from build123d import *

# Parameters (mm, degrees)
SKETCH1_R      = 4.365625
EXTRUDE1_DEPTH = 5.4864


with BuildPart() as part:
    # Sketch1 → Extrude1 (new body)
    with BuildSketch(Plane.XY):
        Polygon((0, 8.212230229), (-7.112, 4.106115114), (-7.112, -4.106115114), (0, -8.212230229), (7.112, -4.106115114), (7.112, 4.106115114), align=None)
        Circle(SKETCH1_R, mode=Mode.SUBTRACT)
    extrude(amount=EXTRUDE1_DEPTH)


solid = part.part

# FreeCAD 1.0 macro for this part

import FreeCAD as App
import Part
import Sketcher
from FreeCAD import Vector
Q = App.Units.Quantity


def add_polygon(sketch, points):
    """Adds a closed chain of lines whose ends are joined by coincident constraints."""
    first, n = sketch.GeometryCount, len(points)
    for a, b in zip(points, points[1:] + points[:1]):
        sketch.addGeometry(Part.LineSegment(App.Vector(*a, 0), App.Vector(*b, 0)), False)
    for i in range(n):
        sketch.addConstraint(Sketcher.Constraint("Coincident", first + i, 2, first + (i + 1) % n, 1))

doc = App.newDocument("Part")
params = doc.addObject("Spreadsheet::Sheet", "Params")
for row, (alias, value) in enumerate([
    ("sketch1_diameter", "0.34375 in"),
    ("pad1_length", "0.216 in"),
], start=1):
    params.set(f"A{row}", alias)
    params.set(f"B{row}", "=" + value)
    params.setAlias(f"B{row}", alias)

body = doc.addObject("PartDesign::Body", "Body")

# Sketch on XY plane
sketch1 = doc.addObject("Sketcher::SketchObject", "Sketch")
body.addObject(sketch1)
sketch1.AttachmentSupport = (doc.XY_Plane, [""])
sketch1.MapMode = "FlatFace"
add_polygon(sketch1, [(0, 8.2), (-7.1, 4.1), (-7.1, -4.1), (0, -8.2), (7.1, -4.1), (7.1, 4.1)])  # lines 0-5
sketch1.addGeometry(Part.Circle(Vector(0, 0, 0), Vector(0, 0, 1), 4.4), False)  # 6
sketch1.addConstraint([
    Sketcher.Constraint("Vertical", 1),
    Sketcher.Constraint("Vertical", 4),
    Sketcher.Constraint("Coincident", 6, 3, -1, 1),
    Sketcher.Constraint("Symmetric", 0, 2, 3, 2, -1, 1),
    Sketcher.Constraint("Symmetric", 2, 2, 5, 2, -1, 1),
    Sketcher.Constraint("PointOnObject", 2, 2, -2),
    Sketcher.Constraint("Parallel", 2, 5),
    Sketcher.Constraint("Horizontal", 1, 2, 3, 2),
    Sketcher.Constraint("Diameter", 6, Q("0.34375 in")),
    Sketcher.Constraint("Angle", 0, Q("-150 deg")),
    Sketcher.Constraint("DistanceX", 0, 2, -1, 1, Q("0.28 in")),
    Sketcher.Constraint("DistanceY", 1, 2, 1, 1, Q("8.21223 mm")),
])
sketch1.setExpression("Constraints[14]", "Params.sketch1_diameter")
pad1 = doc.addObject("PartDesign::Pad", "Pad")
body.addObject(pad1)
pad1.Profile = sketch1
pad1.setExpression("Length", "Params.pad1_length")

doc.recompute()
